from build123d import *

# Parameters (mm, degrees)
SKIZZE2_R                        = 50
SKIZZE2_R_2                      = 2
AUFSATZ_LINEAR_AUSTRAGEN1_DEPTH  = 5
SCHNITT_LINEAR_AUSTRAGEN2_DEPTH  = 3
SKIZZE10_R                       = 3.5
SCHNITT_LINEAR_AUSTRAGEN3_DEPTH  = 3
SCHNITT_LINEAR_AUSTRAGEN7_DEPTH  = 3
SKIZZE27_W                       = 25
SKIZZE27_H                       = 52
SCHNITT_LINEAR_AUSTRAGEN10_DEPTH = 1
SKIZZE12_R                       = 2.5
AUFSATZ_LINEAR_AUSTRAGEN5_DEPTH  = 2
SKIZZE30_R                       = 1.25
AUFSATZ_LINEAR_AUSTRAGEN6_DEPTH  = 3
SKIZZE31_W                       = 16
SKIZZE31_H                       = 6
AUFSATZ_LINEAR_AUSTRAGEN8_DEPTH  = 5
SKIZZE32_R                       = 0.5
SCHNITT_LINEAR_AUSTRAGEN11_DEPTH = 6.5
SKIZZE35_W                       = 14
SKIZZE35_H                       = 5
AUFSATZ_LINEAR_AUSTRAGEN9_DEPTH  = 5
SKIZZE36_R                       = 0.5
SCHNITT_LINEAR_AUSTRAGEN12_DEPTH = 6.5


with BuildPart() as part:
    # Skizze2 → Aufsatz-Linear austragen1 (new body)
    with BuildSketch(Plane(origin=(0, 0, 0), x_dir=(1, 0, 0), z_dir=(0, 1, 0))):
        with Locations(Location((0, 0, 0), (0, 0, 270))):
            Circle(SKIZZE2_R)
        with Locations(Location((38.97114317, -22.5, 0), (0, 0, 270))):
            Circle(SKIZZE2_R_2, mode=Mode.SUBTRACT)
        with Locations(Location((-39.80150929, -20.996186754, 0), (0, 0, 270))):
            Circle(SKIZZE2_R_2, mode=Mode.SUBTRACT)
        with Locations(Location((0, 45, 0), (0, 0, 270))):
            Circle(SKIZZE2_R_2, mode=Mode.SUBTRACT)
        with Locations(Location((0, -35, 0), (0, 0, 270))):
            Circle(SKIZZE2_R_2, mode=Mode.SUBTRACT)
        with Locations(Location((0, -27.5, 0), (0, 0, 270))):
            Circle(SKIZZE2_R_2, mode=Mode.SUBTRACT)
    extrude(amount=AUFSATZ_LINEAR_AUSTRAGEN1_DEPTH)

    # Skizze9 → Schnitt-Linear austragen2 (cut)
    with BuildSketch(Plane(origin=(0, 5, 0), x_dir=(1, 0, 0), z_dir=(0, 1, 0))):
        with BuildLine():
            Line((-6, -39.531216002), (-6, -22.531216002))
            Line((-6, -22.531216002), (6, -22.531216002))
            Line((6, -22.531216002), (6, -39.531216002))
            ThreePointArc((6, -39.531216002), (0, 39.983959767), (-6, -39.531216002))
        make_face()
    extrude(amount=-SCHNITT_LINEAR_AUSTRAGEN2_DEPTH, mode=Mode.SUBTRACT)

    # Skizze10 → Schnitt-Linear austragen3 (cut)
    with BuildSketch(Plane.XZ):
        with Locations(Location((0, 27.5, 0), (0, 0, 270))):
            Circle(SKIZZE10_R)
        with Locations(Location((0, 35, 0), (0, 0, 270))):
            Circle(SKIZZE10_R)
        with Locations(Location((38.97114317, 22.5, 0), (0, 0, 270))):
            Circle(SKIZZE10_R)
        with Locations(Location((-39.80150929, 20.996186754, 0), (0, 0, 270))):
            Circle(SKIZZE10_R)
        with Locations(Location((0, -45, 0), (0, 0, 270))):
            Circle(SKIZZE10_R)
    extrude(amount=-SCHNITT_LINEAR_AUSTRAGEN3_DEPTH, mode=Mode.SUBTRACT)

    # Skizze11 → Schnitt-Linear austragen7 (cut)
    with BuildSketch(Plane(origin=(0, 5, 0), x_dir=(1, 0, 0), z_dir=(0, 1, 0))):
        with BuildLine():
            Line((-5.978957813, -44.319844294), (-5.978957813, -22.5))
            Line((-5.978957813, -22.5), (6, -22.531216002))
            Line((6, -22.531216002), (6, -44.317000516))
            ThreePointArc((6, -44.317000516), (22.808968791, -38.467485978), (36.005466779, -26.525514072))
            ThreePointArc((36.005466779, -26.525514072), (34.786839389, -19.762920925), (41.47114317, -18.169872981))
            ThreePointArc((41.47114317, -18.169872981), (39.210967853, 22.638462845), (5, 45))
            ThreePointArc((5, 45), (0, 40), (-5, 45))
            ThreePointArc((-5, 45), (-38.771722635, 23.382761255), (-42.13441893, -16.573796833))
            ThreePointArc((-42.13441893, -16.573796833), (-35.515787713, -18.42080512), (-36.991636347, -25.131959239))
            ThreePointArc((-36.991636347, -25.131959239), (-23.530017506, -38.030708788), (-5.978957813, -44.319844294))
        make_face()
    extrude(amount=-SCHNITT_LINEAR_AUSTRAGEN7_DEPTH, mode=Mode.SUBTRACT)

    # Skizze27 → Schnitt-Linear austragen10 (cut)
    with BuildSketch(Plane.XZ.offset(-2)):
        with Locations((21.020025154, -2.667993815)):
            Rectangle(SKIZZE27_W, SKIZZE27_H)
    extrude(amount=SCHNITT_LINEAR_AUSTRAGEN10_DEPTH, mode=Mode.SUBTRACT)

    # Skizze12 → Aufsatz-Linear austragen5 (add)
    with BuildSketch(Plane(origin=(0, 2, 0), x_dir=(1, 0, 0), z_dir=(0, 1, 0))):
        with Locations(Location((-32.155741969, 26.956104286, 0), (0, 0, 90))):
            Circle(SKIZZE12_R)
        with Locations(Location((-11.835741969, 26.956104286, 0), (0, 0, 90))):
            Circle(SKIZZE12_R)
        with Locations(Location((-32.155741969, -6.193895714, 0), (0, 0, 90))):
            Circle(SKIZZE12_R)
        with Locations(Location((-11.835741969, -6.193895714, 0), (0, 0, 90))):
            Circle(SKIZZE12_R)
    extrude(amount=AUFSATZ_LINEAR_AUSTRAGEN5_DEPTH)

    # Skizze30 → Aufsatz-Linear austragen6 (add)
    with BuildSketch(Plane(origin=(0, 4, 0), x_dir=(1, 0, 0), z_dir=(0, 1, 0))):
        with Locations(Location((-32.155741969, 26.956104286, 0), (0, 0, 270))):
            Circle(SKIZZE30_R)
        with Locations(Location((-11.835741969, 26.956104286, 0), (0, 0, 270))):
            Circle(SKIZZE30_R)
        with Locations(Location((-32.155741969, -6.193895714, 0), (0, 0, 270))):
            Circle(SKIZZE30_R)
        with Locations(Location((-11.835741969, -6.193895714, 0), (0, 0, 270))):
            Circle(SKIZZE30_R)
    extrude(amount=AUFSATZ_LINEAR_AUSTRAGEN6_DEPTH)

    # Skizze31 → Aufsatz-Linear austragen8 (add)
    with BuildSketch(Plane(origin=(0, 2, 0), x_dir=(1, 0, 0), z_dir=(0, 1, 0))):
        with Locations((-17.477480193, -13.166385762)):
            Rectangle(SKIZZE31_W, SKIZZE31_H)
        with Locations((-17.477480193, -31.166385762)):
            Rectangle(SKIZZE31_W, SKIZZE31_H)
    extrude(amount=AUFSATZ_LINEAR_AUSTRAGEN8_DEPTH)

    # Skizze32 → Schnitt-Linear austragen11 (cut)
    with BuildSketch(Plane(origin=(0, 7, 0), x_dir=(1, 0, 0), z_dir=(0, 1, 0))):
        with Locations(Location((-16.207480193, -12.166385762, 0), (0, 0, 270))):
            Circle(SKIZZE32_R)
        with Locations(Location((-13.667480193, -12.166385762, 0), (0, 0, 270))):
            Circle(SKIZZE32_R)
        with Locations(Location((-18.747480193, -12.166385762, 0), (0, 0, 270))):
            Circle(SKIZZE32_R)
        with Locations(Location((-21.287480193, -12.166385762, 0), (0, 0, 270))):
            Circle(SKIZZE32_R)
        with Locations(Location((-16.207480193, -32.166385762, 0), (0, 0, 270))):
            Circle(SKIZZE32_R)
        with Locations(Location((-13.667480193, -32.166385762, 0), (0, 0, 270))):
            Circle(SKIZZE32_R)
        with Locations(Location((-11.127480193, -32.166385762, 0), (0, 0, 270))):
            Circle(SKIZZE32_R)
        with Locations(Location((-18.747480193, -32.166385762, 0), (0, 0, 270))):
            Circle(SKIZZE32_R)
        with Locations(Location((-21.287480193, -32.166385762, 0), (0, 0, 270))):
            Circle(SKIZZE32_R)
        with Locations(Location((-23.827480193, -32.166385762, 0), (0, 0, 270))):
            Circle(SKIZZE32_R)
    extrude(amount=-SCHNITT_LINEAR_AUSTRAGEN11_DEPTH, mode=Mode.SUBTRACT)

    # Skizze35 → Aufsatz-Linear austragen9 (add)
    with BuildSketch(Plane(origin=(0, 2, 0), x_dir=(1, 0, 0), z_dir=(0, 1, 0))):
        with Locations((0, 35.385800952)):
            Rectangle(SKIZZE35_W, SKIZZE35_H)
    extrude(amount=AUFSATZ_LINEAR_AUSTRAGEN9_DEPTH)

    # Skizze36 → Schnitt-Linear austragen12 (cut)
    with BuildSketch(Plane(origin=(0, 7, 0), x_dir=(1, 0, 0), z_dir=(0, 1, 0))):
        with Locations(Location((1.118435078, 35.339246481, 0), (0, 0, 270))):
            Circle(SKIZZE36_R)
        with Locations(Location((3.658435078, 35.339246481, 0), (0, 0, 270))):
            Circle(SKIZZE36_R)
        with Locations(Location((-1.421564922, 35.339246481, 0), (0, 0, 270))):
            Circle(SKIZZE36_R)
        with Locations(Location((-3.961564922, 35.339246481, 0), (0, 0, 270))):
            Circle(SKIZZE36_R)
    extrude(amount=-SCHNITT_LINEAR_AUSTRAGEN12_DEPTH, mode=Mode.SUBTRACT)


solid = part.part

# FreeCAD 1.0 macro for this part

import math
import FreeCAD as App
import Part
import Sketcher
Q = App.Units.Quantity


def add_polygon(sketch, points):
    """Adds a closed chain of lines whose ends are joined by coincident constraints."""
    first, n = sketch.GeometryCount, len(points)
    for a, b in zip(points, points[1:] + points[:1]):
        sketch.addGeometry(Part.LineSegment(App.Vector(*a, 0), App.Vector(*b, 0)), False)
    for i in range(n):
        sketch.addConstraint(Sketcher.Constraint("Coincident", first + i, 2, first + (i + 1) % n, 1))

doc = App.newDocument("Part")
body = doc.addObject("PartDesign::Body", "Body")

# Sketch on XZ plane
sketch1 = doc.addObject("Sketcher::SketchObject", "Sketch")
body.addObject(sketch1)
sketch1.AttachmentSupport = (doc.XZ_Plane, [""])
sketch1.MapMode = "FlatFace"
sketch1.addGeometry([
    Part.Circle(App.Vector(0, 0, 0), App.Vector(0, 0, 1), 50),  # 0
    Part.Circle(App.Vector(-39.8, 21, 0), App.Vector(0, 0, 1), 2),  # 1
    Part.Circle(App.Vector(0, -45, 0), App.Vector(0, 0, 1), 2),  # 2
    Part.Circle(App.Vector(0, 27.5, 0), App.Vector(0, 0, 1), 2),  # 3
    Part.Circle(App.Vector(0, 35, 0), App.Vector(0, 0, 1), 2),  # 4
    Part.Circle(App.Vector(39, 22.5, 0), App.Vector(0, 0, 1), 2),  # 5
], False)
sketch1.addConstraint([
    Sketcher.Constraint("Coincident", 0, 3, -1, 1),
    Sketcher.Constraint("Equal", 1, 2),
    Sketcher.Constraint("Equal", 2, 3),
    Sketcher.Constraint("Equal", 3, 4),
    Sketcher.Constraint("Equal", 4, 5),
    Sketcher.Constraint("PointOnObject", 2, 3, -2),
    Sketcher.Constraint("PointOnObject", 3, 3, -2),
    Sketcher.Constraint("PointOnObject", 4, 3, -2),
    Sketcher.Constraint("Diameter", 0, Q("100 mm")),
    Sketcher.Constraint("Diameter", 1, Q("4 mm")),
    Sketcher.Constraint("DistanceY", 2, 3, -1, 1, Q("45 mm")),
    Sketcher.Constraint("DistanceY", -1, 1, 4, 3, Q("35 mm")),
    Sketcher.Constraint("DistanceY", 5, 3, 3, 3, Q("5 mm")),
    Sketcher.Constraint("DistanceY", -1, 1, 3, 3, Q("27.5 mm")),
    Sketcher.Constraint("DistanceX", 1, 3, -1, 1, Q("39.801509 mm")),
    Sketcher.Constraint("DistanceY", -1, 1, 1, 3, Q("20.996187 mm")),
    Sketcher.Constraint("DistanceX", -1, 1, 5, 3, Q("38.971143 mm")),
])
pad1 = doc.addObject("PartDesign::Pad", "Pad")
body.addObject(pad1)
pad1.Profile = sketch1
pad1.Length = 5
pad1.Reversed = True

# Sketch on XZ plane
sketch2 = doc.addObject("Sketcher::SketchObject", "Sketch001")
body.addObject(sketch2)
sketch2.AttachmentSupport = (doc.XZ_Plane, [""])
sketch2.MapMode = "FlatFace"
sketch2.AttachmentOffset = App.Placement(App.Vector(0, 0, -5), App.Rotation())
sketch2.addGeometry([
    Part.LineSegment(App.Vector(-6, 40, 0), App.Vector(-6, 23, 0)),
    Part.LineSegment(App.Vector(-6, 23, 0), App.Vector(6, 23, 0)),
    Part.LineSegment(App.Vector(6, 23, 0), App.Vector(6, 40, 0)),
    Part.ArcOfCircle(Part.Circle(App.Vector(0, 0, 0), App.Vector(0, 0, 1), 40), math.radians(99), math.radians(441)),
], False)
sketch2.addConstraint([
    Sketcher.Constraint("Coincident", 0, 2, 1, 1),
    Sketcher.Constraint("Coincident", 1, 2, 2, 1),
    Sketcher.Constraint("Coincident", 2, 2, 3, 2),
    Sketcher.Constraint("Coincident", 3, 1, 0, 1),
    Sketcher.Constraint("Vertical", 0),
    Sketcher.Constraint("Horizontal", 1),
    Sketcher.Constraint("Vertical", 2),
    Sketcher.Constraint("Coincident", 3, 3, -1, 1),
    Sketcher.Constraint("Horizontal", 2, 2, 3, 1),
    Sketcher.Constraint("DistanceX", 1, 1, 1, 2, Q("12 mm")),
    Sketcher.Constraint("DistanceY", 0, 2, 0, 1, Q("17 mm")),
    Sketcher.Constraint("Radius", 3, Q("39.98396 mm")),
])
pocket1 = doc.addObject("PartDesign::Pocket", "Pocket")
body.addObject(pocket1)
pocket1.Profile = sketch2
pocket1.Length = 3
pocket1.Reversed = True

# Sketch on XZ plane
sketch3 = doc.addObject("Sketcher::SketchObject", "Sketch002")
body.addObject(sketch3)
sketch3.AttachmentSupport = (doc.XZ_Plane, [""])
sketch3.MapMode = "FlatFace"
sketch3.addGeometry([
    Part.Circle(App.Vector(0, 27.5, 0), App.Vector(0, 0, 1), 3.5),  # 0
    Part.Circle(App.Vector(0, 35, 0), App.Vector(0, 0, 1), 3.5),  # 1
    Part.Circle(App.Vector(39, 22.5, 0), App.Vector(0, 0, 1), 3.5),  # 2
    Part.Circle(App.Vector(-39.8, 21, 0), App.Vector(0, 0, 1), 3.5),  # 3
    Part.Circle(App.Vector(0, -45, 0), App.Vector(0, 0, 1), 3.5),  # 4
], False)
sketch3.addConstraint([
    Sketcher.Constraint("Equal", 0, 1),
    Sketcher.Constraint("Equal", 1, 2),
    Sketcher.Constraint("Equal", 2, 3),
    Sketcher.Constraint("Equal", 3, 4),
    Sketcher.Constraint("PointOnObject", 0, 3, -2),
    Sketcher.Constraint("PointOnObject", 1, 3, -2),
    Sketcher.Constraint("PointOnObject", 4, 3, -2),
    Sketcher.Constraint("Diameter", 0, Q("7 mm")),
    Sketcher.Constraint("DistanceY", -1, 1, 1, 3, Q("35 mm")),
    Sketcher.Constraint("DistanceY", 4, 3, -1, 1, Q("45 mm")),
    Sketcher.Constraint("DistanceY", 2, 3, 0, 3, Q("5 mm")),
    Sketcher.Constraint("DistanceY", -1, 1, 0, 3, Q("27.5 mm")),
    Sketcher.Constraint("DistanceX", 3, 3, -1, 1, Q("39.801509 mm")),
    Sketcher.Constraint("DistanceX", -1, 1, 2, 3, Q("38.971143 mm")),
    Sketcher.Constraint("DistanceY", -1, 1, 3, 3, Q("20.996187 mm")),
])
pocket2 = doc.addObject("PartDesign::Pocket", "Pocket001")
body.addObject(pocket2)
pocket2.Profile = sketch3
pocket2.Length = 3

# Sketch on XZ plane
sketch4 = doc.addObject("Sketcher::SketchObject", "Sketch003")
body.addObject(sketch4)
sketch4.AttachmentSupport = (doc.XZ_Plane, [""])
sketch4.MapMode = "FlatFace"
sketch4.AttachmentOffset = App.Placement(App.Vector(0, 0, -5), App.Rotation())
sketch4.addGeometry([
    Part.LineSegment(App.Vector(-6, 44, 0), App.Vector(-6, 22, 0)),  # 0
    Part.LineSegment(App.Vector(-6, 22, 0), App.Vector(6, 23, 0)),  # 1
    Part.LineSegment(App.Vector(6, 23, 0), App.Vector(6, 44, 0)),  # 2
    Part.ArcOfCircle(Part.Circle(App.Vector(0, 0, 0), App.Vector(0, 0, 1), 45), math.radians(36), math.radians(82)),  # 3
    Part.ArcOfCircle(Part.Circle(App.Vector(39, 22, 0), App.Vector(0, 0, 1), 5), math.radians(126), math.radians(300)),  # 4
    Part.ArcOfCircle(Part.Circle(App.Vector(0, 0, 0), App.Vector(0, 0, 1), 45), math.radians(-84), math.radians(24)),  # 5
    Part.ArcOfCircle(Part.Circle(App.Vector(0, -45, 0), App.Vector(0, 0, 1), 5), math.radians(0), math.radians(180)),  # 6
    Part.ArcOfCircle(Part.Circle(App.Vector(0, 0, 0), App.Vector(0, 0, 1), 45), math.radians(159), math.radians(264)),  # 7
    Part.ArcOfCircle(Part.Circle(App.Vector(-40, 21, 0), App.Vector(0, 0, 1), 5), math.radians(-118), math.radians(56)),  # 8
    Part.ArcOfCircle(Part.Circle(App.Vector(0, 0, 0), App.Vector(0, 0, 1), 45), math.radians(98), math.radians(146)),  # 9
], False)
sketch4.addConstraint([
    Sketcher.Constraint("Coincident", 0, 2, 1, 1),
    Sketcher.Constraint("Coincident", 1, 2, 2, 1),
    Sketcher.Constraint("Coincident", 2, 2, 3, 2),
    Sketcher.Constraint("Coincident", 3, 1, 4, 1),
    Sketcher.Constraint("Coincident", 4, 2, 5, 2),
    Sketcher.Constraint("Coincident", 5, 1, 6, 1),
    Sketcher.Constraint("Coincident", 6, 2, 7, 2),
    Sketcher.Constraint("Coincident", 7, 1, 8, 1),
    Sketcher.Constraint("Coincident", 8, 2, 9, 2),
    Sketcher.Constraint("Coincident", 9, 1, 0, 1),
    Sketcher.Constraint("Vertical", 0),
    Sketcher.Constraint("Vertical", 2),
    Sketcher.Constraint("Coincident", 3, 3, -1, 1),
    Sketcher.Constraint("Coincident", 5, 3, -1, 1),
    Sketcher.Constraint("Coincident", 7, 3, -1, 1),
    Sketcher.Constraint("Coincident", 9, 3, -1, 1),
    Sketcher.Constraint("Equal", 4, 6),
    Sketcher.Constraint("Equal", 5, 7),
    Sketcher.Constraint("Equal", 6, 8),
    Sketcher.Constraint("Equal", 3, 9),
    Sketcher.Constraint("PointOnObject", 6, 3, -2),
    Sketcher.Constraint("Horizontal", 4, 3, 0, 2),
    Sketcher.Constraint("Horizontal", 6, 3, 5, 1),
    Sketcher.Constraint("Radius", 4, Q("5 mm")),
    Sketcher.Constraint("DistanceY", 6, 3, -1, 1, Q("45 mm")),
    Sketcher.Constraint("DistanceX", -1, 1, 1, 2, Q("6 mm")),
    Sketcher.Constraint("DistanceY", -1, 1, 4, 3, Q("22.5 mm")),
    Sketcher.Constraint("DistanceX", 4, 3, 4, 2, Q("2.5 mm")),
    Sketcher.Constraint("Radius", 3, Q("44.721321 mm")),
    Sketcher.Constraint("Distance", 1, Q("11.978998 mm")),
    Sketcher.Constraint("DistanceY", 1, 2, 3, 1, Q("3.994298 mm")),
    Sketcher.Constraint("DistanceX", 8, 3, -1, 1, Q("39.801509 mm")),
    Sketcher.Constraint("DistanceX", 7, 1, -1, 1, Q("42.134419 mm")),
])
pocket3 = doc.addObject("PartDesign::Pocket", "Pocket002")
body.addObject(pocket3)
pocket3.Profile = sketch4
pocket3.Length = 3
pocket3.Reversed = True

# Sketch on XZ plane
sketch5 = doc.addObject("Sketcher::SketchObject", "Sketch004")
body.addObject(sketch5)
sketch5.AttachmentSupport = (doc.XZ_Plane, [""])
sketch5.MapMode = "FlatFace"
sketch5.AttachmentOffset = App.Placement(App.Vector(0, 0, -2), App.Rotation())
add_polygon(sketch5, [(9, 23), (9, -29), (34, -29), (34, 23)])  # lines 0-3
sketch5.addConstraint([
    Sketcher.Constraint("Vertical", 0),
    Sketcher.Constraint("Horizontal", 1),
    Sketcher.Constraint("Vertical", 2),
    Sketcher.Constraint("Horizontal", 3),
    Sketcher.Constraint("DistanceX", 1, 1, 1, 2, Q("25 mm")),
    Sketcher.Constraint("DistanceY", 0, 2, 0, 1, Q("52 mm")),
    Sketcher.Constraint("DistanceX", -1, 1, 0, 2, Q("8.520025 mm")),
    Sketcher.Constraint("DistanceY", 0, 2, -1, 1, Q("28.667994 mm")),
])
pocket4 = doc.addObject("PartDesign::Pocket", "Pocket003")
body.addObject(pocket4)
pocket4.Profile = sketch5
pocket4.Length = 1
pocket4.Reversed = True

# Sketch on XZ plane
sketch6 = doc.addObject("Sketcher::SketchObject", "Sketch005")
body.addObject(sketch6)
sketch6.AttachmentSupport = (doc.XZ_Plane, [""])
sketch6.MapMode = "FlatFace"
sketch6.AttachmentOffset = App.Placement(App.Vector(0, 0, -2), App.Rotation())
sketch6.addGeometry([
    Part.Circle(App.Vector(-32.2, -27, 0), App.Vector(0, 0, 1), 2.5),
    Part.Circle(App.Vector(-11.8, -27, 0), App.Vector(0, 0, 1), 2.5),
    Part.Circle(App.Vector(-32.2, 6.2, 0), App.Vector(0, 0, 1), 2.5),
    Part.Circle(App.Vector(-11.8, 6.2, 0), App.Vector(0, 0, 1), 2.5),
], False)
sketch6.addConstraint([
    Sketcher.Constraint("Equal", 0, 1),
    Sketcher.Constraint("Equal", 1, 2),
    Sketcher.Constraint("Equal", 2, 3),
    Sketcher.Constraint("Horizontal", 0, 3, 1, 3),
    Sketcher.Constraint("Horizontal", 2, 3, 3, 3),
    Sketcher.Constraint("Vertical", 0, 3, 2, 3),
    Sketcher.Constraint("Vertical", 1, 3, 3, 3),
    Sketcher.Constraint("Diameter", 0, Q("5 mm")),
    Sketcher.Constraint("DistanceX", 0, 3, 1, 3, Q("20.32 mm")),
    Sketcher.Constraint("DistanceY", 0, 3, 2, 3, Q("33.15 mm")),
    Sketcher.Constraint("DistanceX", 0, 3, -1, 1, Q("32.155742 mm")),
    Sketcher.Constraint("DistanceY", 0, 3, -1, 1, Q("26.956104 mm")),
])
pad2 = doc.addObject("PartDesign::Pad", "Pad001")
body.addObject(pad2)
pad2.Profile = sketch6
pad2.Length = 2
pad2.Reversed = True

# Sketch on XZ plane
sketch7 = doc.addObject("Sketcher::SketchObject", "Sketch006")
body.addObject(sketch7)
sketch7.AttachmentSupport = (doc.XZ_Plane, [""])
sketch7.MapMode = "FlatFace"
sketch7.AttachmentOffset = App.Placement(App.Vector(0, 0, -4), App.Rotation())
sketch7.addGeometry([
    Part.Circle(App.Vector(-32.2, -27, 0), App.Vector(0, 0, 1), 1.2),
    Part.Circle(App.Vector(-11.8, -27, 0), App.Vector(0, 0, 1), 1.2),
    Part.Circle(App.Vector(-32.2, 6.2, 0), App.Vector(0, 0, 1), 1.2),
    Part.Circle(App.Vector(-11.8, 6.2, 0), App.Vector(0, 0, 1), 1.2),
], False)
sketch7.addConstraint([
    Sketcher.Constraint("Equal", 0, 1),
    Sketcher.Constraint("Equal", 1, 2),
    Sketcher.Constraint("Equal", 2, 3),
    Sketcher.Constraint("Horizontal", 0, 3, 1, 3),
    Sketcher.Constraint("Horizontal", 2, 3, 3, 3),
    Sketcher.Constraint("Vertical", 0, 3, 2, 3),
    Sketcher.Constraint("Vertical", 1, 3, 3, 3),
    Sketcher.Constraint("Diameter", 0, Q("2.5 mm")),
    Sketcher.Constraint("DistanceX", 0, 3, 1, 3, Q("20.32 mm")),
    Sketcher.Constraint("DistanceY", 0, 3, 2, 3, Q("33.15 mm")),
    Sketcher.Constraint("DistanceX", 0, 3, -1, 1, Q("32.155742 mm")),
    Sketcher.Constraint("DistanceY", 0, 3, -1, 1, Q("26.956104 mm")),
])
pad3 = doc.addObject("PartDesign::Pad", "Pad002")
body.addObject(pad3)
pad3.Profile = sketch7
pad3.Length = 3
pad3.Reversed = True

# Sketch on XZ plane
sketch8 = doc.addObject("Sketcher::SketchObject", "Sketch007")
body.addObject(sketch8)
sketch8.AttachmentSupport = (doc.XZ_Plane, [""])
sketch8.MapMode = "FlatFace"
sketch8.AttachmentOffset = App.Placement(App.Vector(0, 0, -2), App.Rotation())
add_polygon(sketch8, [(-25, 10), (-25, 16), (-9, 16), (-9, 10)])  # lines 0-3
add_polygon(sketch8, [(-25, 28), (-25, 34), (-9, 34), (-9, 28)])  # lines 4-7
sketch8.addConstraint([
    Sketcher.Constraint("Vertical", 0),
    Sketcher.Constraint("Horizontal", 1),
    Sketcher.Constraint("Vertical", 2),
    Sketcher.Constraint("Horizontal", 3),
    Sketcher.Constraint("Vertical", 4),
    Sketcher.Constraint("Horizontal", 5),
    Sketcher.Constraint("Vertical", 6),
    Sketcher.Constraint("Horizontal", 7),
    Sketcher.Constraint("Vertical", 3, 2, 4, 2),
    Sketcher.Constraint("Vertical", 2, 2, 5, 2),
    Sketcher.Constraint("Equal", 2, 4),
    Sketcher.Constraint("DistanceX", 1, 1, 1, 2, Q("16 mm")),
    Sketcher.Constraint("DistanceY", 0, 1, 0, 2, Q("6 mm")),
    Sketcher.Constraint("DistanceY", 0, 2, 4, 2, Q("18 mm")),
    Sketcher.Constraint("DistanceX", 0, 2, -1, 1, Q("25.47748 mm")),
    Sketcher.Constraint("DistanceY", -1, 1, 0, 2, Q("16.166386 mm")),
])
pad4 = doc.addObject("PartDesign::Pad", "Pad003")
body.addObject(pad4)
pad4.Profile = sketch8
pad4.Length = 5
pad4.Reversed = True

# Sketch on XZ plane
sketch9 = doc.addObject("Sketcher::SketchObject", "Sketch008")
body.addObject(sketch9)
sketch9.AttachmentSupport = (doc.XZ_Plane, [""])
sketch9.MapMode = "FlatFace"
sketch9.AttachmentOffset = App.Placement(App.Vector(0, 0, -7), App.Rotation())
sketch9.addGeometry([
    Part.Circle(App.Vector(-16.2, 12.2, 0), App.Vector(0, 0, 1), 0.5),  # 0
    Part.Circle(App.Vector(-13.7, 12.2, 0), App.Vector(0, 0, 1), 0.5),  # 1
    Part.Circle(App.Vector(-18.7, 12.2, 0), App.Vector(0, 0, 1), 0.5),  # 2
    Part.Circle(App.Vector(-21.3, 12.2, 0), App.Vector(0, 0, 1), 0.5),  # 3
    Part.Circle(App.Vector(-16.2, 32.2, 0), App.Vector(0, 0, 1), 0.5),  # 4
    Part.Circle(App.Vector(-13.7, 32.2, 0), App.Vector(0, 0, 1), 0.5),  # 5
    Part.Circle(App.Vector(-11.1, 32.2, 0), App.Vector(0, 0, 1), 0.5),  # 6
    Part.Circle(App.Vector(-18.7, 32.2, 0), App.Vector(0, 0, 1), 0.5),  # 7
    Part.Circle(App.Vector(-21.3, 32.2, 0), App.Vector(0, 0, 1), 0.5),  # 8
    Part.Circle(App.Vector(-23.8, 32.2, 0), App.Vector(0, 0, 1), 0.5),  # 9
], False)
sketch9.addConstraint([
    Sketcher.Constraint("Equal", 0, 1),
    Sketcher.Constraint("Equal", 1, 2),
    Sketcher.Constraint("Equal", 2, 3),
    Sketcher.Constraint("Equal", 3, 4),
    Sketcher.Constraint("Equal", 4, 5),
    Sketcher.Constraint("Equal", 5, 6),
    Sketcher.Constraint("Equal", 6, 7),
    Sketcher.Constraint("Equal", 7, 8),
    Sketcher.Constraint("Equal", 8, 9),
    Sketcher.Constraint("Horizontal", 0, 3, 1, 3),
    Sketcher.Constraint("Horizontal", 1, 3, 2, 3),
    Sketcher.Constraint("Horizontal", 2, 3, 3, 3),
    Sketcher.Constraint("Horizontal", 4, 3, 5, 3),
    Sketcher.Constraint("Horizontal", 5, 3, 6, 3),
    Sketcher.Constraint("Horizontal", 6, 3, 7, 3),
    Sketcher.Constraint("Horizontal", 7, 3, 8, 3),
    Sketcher.Constraint("Horizontal", 8, 3, 9, 3),
    Sketcher.Constraint("Vertical", 0, 3, 4, 3),
    Sketcher.Constraint("Vertical", 1, 3, 5, 3),
    Sketcher.Constraint("Vertical", 2, 3, 7, 3),
    Sketcher.Constraint("Vertical", 3, 3, 8, 3),
    Sketcher.Constraint("Diameter", 0, Q("1 mm")),
    Sketcher.Constraint("DistanceY", 0, 3, 4, 3, Q("20 mm")),
    Sketcher.Constraint("DistanceX", 9, 3, 6, 3, Q("12.7 mm")),
    Sketcher.Constraint("DistanceX", 0, 3, 1, 3, Q("2.54 mm")),
    Sketcher.Constraint("DistanceX", 2, 3, 0, 3, Q("2.54 mm")),
    Sketcher.Constraint("DistanceX", 3, 3, 2, 3, Q("2.54 mm")),
    Sketcher.Constraint("DistanceX", 5, 3, 6, 3, Q("2.54 mm")),
    Sketcher.Constraint("DistanceX", 0, 3, -1, 1, Q("16.20748 mm")),
    Sketcher.Constraint("DistanceY", -1, 1, 0, 3, Q("12.166386 mm")),
])
pocket5 = doc.addObject("PartDesign::Pocket", "Pocket004")
body.addObject(pocket5)
pocket5.Profile = sketch9
pocket5.Length = 6.5
pocket5.Reversed = True

# Sketch on XZ plane
sketch10 = doc.addObject("Sketcher::SketchObject", "Sketch009")
body.addObject(sketch10)
sketch10.AttachmentSupport = (doc.XZ_Plane, [""])
sketch10.MapMode = "FlatFace"
sketch10.AttachmentOffset = App.Placement(App.Vector(0, 0, -2), App.Rotation())
add_polygon(sketch10, [(-7, -38), (-7, -33), (7, -33), (7, -38)])  # lines 0-3
sketch10.addConstraint([
    Sketcher.Constraint("Vertical", 0),
    Sketcher.Constraint("Horizontal", 1),
    Sketcher.Constraint("Vertical", 2),
    Sketcher.Constraint("Horizontal", 3),
    Sketcher.Constraint("DistanceX", 1, 1, 1, 2, Q("14 mm")),
    Sketcher.Constraint("DistanceY", 0, 1, 0, 2, Q("5 mm")),
    Sketcher.Constraint("DistanceX", 0, 2, -1, 1, Q("7 mm")),
    Sketcher.Constraint("DistanceY", 0, 2, -1, 1, Q("32.885801 mm")),
])
pad5 = doc.addObject("PartDesign::Pad", "Pad004")
body.addObject(pad5)
pad5.Profile = sketch10
pad5.Length = 5
pad5.Reversed = True

# Sketch on XZ plane
sketch11 = doc.addObject("Sketcher::SketchObject", "Sketch010")
body.addObject(sketch11)
sketch11.AttachmentSupport = (doc.XZ_Plane, [""])
sketch11.MapMode = "FlatFace"
sketch11.AttachmentOffset = App.Placement(App.Vector(0, 0, -7), App.Rotation())
sketch11.addGeometry([
    Part.Circle(App.Vector(1.1, -35.3, 0), App.Vector(0, 0, 1), 0.5),
    Part.Circle(App.Vector(3.7, -35.3, 0), App.Vector(0, 0, 1), 0.5),
    Part.Circle(App.Vector(-1.4, -35.3, 0), App.Vector(0, 0, 1), 0.5),
    Part.Circle(App.Vector(-4, -35.3, 0), App.Vector(0, 0, 1), 0.5),
], False)
sketch11.addConstraint([
    Sketcher.Constraint("Equal", 0, 1),
    Sketcher.Constraint("Equal", 1, 2),
    Sketcher.Constraint("Equal", 2, 3),
    Sketcher.Constraint("Horizontal", 0, 3, 1, 3),
    Sketcher.Constraint("Horizontal", 1, 3, 2, 3),
    Sketcher.Constraint("Horizontal", 2, 3, 3, 3),
    Sketcher.Constraint("Diameter", 0, Q("1 mm")),
    Sketcher.Constraint("DistanceX", 0, 3, 1, 3, Q("2.54 mm")),
    Sketcher.Constraint("DistanceX", 2, 3, 0, 3, Q("2.54 mm")),
    Sketcher.Constraint("DistanceX", 3, 3, 2, 3, Q("2.54 mm")),
    Sketcher.Constraint("DistanceX", -1, 1, 0, 3, Q("1.118435 mm")),
    Sketcher.Constraint("DistanceY", 0, 3, -1, 1, Q("35.339246 mm")),
])
pocket6 = doc.addObject("PartDesign::Pocket", "Pocket005")
body.addObject(pocket6)
pocket6.Profile = sketch11
pocket6.Length = 6.5
pocket6.Reversed = True

doc.recompute()
